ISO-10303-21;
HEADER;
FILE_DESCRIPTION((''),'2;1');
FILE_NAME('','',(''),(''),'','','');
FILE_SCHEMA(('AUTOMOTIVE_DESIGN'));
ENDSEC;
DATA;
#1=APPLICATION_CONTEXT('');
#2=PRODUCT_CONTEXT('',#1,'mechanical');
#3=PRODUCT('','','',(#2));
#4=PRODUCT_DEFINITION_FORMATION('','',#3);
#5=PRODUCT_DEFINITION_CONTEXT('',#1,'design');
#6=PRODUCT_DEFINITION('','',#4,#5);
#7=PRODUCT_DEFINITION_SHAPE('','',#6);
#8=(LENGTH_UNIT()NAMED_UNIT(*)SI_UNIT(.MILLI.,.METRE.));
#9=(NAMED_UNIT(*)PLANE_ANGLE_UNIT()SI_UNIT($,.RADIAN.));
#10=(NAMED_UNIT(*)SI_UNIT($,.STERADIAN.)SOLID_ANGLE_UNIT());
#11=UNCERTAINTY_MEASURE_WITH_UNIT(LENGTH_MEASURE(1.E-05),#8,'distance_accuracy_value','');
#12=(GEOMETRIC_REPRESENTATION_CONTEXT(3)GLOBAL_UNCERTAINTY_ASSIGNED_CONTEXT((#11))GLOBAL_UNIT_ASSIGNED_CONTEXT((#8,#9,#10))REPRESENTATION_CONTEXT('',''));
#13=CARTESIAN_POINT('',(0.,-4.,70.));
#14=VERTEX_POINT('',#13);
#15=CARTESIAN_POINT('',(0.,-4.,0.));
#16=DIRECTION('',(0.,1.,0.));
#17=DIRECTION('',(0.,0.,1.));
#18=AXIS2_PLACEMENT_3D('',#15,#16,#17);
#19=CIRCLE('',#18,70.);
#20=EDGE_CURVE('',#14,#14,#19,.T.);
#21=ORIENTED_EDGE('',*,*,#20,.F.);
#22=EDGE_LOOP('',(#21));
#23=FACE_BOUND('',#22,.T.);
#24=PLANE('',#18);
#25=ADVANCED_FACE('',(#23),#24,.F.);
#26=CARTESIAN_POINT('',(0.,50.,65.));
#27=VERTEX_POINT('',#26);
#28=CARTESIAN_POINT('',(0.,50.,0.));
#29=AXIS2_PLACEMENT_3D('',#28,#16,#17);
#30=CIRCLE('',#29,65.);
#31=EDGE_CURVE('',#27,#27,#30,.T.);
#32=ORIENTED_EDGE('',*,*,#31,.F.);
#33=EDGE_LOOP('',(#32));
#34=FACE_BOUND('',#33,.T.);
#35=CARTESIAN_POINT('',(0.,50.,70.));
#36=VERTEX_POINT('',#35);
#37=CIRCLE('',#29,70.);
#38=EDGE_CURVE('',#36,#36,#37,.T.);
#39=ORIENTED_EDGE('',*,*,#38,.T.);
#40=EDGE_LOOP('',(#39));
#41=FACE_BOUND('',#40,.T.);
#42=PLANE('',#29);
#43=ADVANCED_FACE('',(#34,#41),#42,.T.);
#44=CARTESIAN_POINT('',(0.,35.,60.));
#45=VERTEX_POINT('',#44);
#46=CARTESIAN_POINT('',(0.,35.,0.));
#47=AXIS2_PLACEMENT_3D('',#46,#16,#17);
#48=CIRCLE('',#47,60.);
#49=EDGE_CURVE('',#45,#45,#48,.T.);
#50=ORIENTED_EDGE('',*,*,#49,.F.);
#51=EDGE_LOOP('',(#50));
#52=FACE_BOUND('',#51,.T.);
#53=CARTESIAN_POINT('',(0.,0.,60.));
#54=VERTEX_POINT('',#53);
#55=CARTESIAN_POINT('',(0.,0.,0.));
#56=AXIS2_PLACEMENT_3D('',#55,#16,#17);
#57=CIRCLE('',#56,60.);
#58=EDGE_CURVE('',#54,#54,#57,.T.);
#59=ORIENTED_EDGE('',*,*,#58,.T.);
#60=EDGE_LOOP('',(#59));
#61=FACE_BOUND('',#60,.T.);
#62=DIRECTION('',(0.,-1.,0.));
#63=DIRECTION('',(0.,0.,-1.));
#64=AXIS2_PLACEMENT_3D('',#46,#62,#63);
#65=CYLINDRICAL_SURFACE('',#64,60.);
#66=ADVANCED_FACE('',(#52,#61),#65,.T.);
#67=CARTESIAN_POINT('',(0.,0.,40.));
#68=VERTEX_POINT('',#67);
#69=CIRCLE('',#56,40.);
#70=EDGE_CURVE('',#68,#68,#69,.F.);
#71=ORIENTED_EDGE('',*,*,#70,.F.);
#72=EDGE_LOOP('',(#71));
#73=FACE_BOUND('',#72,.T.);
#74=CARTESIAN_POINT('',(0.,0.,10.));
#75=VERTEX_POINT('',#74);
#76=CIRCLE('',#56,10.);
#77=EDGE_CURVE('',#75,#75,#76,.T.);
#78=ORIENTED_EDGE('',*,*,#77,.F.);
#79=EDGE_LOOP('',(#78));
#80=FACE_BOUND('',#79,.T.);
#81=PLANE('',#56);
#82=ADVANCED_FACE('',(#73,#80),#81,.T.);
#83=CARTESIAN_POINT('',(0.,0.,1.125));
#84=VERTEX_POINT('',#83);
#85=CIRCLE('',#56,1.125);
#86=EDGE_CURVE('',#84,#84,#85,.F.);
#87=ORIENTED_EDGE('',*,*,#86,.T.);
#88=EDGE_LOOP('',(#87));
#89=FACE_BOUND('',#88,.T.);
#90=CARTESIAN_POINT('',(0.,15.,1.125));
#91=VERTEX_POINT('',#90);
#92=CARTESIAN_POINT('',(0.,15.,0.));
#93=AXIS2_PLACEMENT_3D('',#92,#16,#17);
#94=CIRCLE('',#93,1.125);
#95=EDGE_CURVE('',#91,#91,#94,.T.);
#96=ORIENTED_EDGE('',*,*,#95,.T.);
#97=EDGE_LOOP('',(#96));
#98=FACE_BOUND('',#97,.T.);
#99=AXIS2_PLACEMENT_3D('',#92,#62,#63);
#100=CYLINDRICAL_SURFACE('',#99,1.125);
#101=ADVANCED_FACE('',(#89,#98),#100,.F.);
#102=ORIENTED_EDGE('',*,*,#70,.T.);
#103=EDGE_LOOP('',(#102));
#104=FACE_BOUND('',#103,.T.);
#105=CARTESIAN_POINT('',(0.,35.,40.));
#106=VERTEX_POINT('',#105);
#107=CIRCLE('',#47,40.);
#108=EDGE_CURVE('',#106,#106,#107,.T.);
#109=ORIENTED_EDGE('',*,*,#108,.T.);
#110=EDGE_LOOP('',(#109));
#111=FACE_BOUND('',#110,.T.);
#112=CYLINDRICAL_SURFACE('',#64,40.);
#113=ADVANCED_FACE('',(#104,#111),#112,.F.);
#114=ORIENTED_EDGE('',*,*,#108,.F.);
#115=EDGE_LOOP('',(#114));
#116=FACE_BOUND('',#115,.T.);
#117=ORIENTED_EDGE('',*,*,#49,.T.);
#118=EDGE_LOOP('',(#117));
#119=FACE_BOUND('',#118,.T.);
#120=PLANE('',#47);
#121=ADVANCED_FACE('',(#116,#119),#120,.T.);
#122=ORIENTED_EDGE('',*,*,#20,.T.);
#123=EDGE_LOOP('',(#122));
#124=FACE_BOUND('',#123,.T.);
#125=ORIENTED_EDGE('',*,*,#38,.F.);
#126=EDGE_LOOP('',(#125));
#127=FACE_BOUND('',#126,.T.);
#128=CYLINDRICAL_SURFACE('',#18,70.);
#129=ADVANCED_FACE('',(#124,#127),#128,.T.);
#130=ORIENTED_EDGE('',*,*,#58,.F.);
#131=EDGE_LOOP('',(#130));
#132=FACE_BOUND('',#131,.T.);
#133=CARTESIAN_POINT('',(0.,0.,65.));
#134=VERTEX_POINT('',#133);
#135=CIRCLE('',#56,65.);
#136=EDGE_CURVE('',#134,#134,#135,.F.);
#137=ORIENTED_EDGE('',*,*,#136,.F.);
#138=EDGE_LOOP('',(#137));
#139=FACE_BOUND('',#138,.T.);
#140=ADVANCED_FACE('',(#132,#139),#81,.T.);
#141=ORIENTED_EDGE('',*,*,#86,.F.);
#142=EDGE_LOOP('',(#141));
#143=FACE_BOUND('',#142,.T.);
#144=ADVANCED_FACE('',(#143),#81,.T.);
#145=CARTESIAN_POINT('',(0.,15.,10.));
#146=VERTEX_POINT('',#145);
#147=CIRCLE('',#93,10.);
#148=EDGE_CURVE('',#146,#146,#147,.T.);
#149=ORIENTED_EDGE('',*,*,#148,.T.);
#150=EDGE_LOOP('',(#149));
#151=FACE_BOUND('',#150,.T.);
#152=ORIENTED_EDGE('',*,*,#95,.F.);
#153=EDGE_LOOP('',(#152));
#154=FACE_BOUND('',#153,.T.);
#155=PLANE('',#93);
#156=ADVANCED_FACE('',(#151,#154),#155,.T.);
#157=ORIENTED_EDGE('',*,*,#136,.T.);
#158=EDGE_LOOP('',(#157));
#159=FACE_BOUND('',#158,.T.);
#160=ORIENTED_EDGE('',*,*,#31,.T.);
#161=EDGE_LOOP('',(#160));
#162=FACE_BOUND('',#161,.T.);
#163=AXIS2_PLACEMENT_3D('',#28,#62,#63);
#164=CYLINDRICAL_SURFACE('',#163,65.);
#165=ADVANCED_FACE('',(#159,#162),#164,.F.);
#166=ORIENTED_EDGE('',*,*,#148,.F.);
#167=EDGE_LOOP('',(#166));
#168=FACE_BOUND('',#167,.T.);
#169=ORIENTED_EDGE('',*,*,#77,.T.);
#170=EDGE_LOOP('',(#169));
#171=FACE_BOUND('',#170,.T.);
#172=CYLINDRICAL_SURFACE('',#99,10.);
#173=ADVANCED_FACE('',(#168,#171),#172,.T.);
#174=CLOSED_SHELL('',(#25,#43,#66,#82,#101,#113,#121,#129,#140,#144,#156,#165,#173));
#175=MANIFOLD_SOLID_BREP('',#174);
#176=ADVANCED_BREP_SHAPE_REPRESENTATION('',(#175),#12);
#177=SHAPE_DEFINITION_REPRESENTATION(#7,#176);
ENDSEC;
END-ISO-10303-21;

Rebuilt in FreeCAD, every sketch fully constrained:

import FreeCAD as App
import Part
import Sketcher
Q = App.Units.Quantity

doc = App.newDocument("Part")
body = doc.addObject("PartDesign::Body", "Body")

# Sketch on XZ plane
sketch1 = doc.addObject("Sketcher::SketchObject", "Sketch")
body.addObject(sketch1)
sketch1.AttachmentSupport = (doc.XZ_Plane, [""])
sketch1.MapMode = "FlatFace"
sketch1.addGeometry(Part.Circle(App.Vector(0, 0, 0), App.Vector(0, 0, 1), 70), False)
sketch1.addConstraint([
    Sketcher.Constraint("Coincident", 0, 3, -1, 1),
    Sketcher.Constraint("Diameter", 0, Q("140 mm")),
])
pad1 = doc.addObject("PartDesign::Pad", "Pad")
body.addObject(pad1)
pad1.Profile = sketch1
pad1.Length = 4

# Sketch on XZ plane
sketch2 = doc.addObject("Sketcher::SketchObject", "Sketch001")
body.addObject(sketch2)
sketch2.AttachmentSupport = (doc.XZ_Plane, [""])
sketch2.MapMode = "FlatFace"
sketch2.addGeometry([
    Part.Circle(App.Vector(0, 0, 0), App.Vector(0, 0, 1), 10),
    Part.Circle(App.Vector(0, 0, 0), App.Vector(0, 0, 1), 1.125),
], False)
sketch2.addConstraint([
    Sketcher.Constraint("Coincident", 0, 3, -1, 1),
    Sketcher.Constraint("Coincident", 1, 3, -1, 1),
    Sketcher.Constraint("Diameter", 0, Q("20 mm")),
    Sketcher.Constraint("Diameter", 1, Q("2.25 mm")),
])
pad2 = doc.addObject("PartDesign::Pad", "Pad001")
body.addObject(pad2)
pad2.Profile = sketch2
pad2.Length = 15
pad2.Reversed = True

# Sketch on XZ plane
sketch3 = doc.addObject("Sketcher::SketchObject", "Sketch002")
body.addObject(sketch3)
sketch3.AttachmentSupport = (doc.XZ_Plane, [""])
sketch3.MapMode = "FlatFace"
sketch3.addGeometry([
    Part.Circle(App.Vector(0, 0, 0), App.Vector(0, 0, 1), 70),
    Part.Circle(App.Vector(0, 0, 0), App.Vector(0, 0, 1), 65),
], False)
sketch3.addConstraint([
    Sketcher.Constraint("Coincident", 0, 3, -1, 1),
    Sketcher.Constraint("Coincident", 1, 3, -1, 1),
    Sketcher.Constraint("Diameter", 0, Q("140 mm")),
    Sketcher.Constraint("Diameter", 1, Q("130 mm")),
])
pad3 = doc.addObject("PartDesign::Pad", "Pad002")
body.addObject(pad3)
pad3.Profile = sketch3
pad3.Length = 50
pad3.Reversed = True

# Sketch on XZ plane
sketch4 = doc.addObject("Sketcher::SketchObject", "Sketch003")
body.addObject(sketch4)
sketch4.AttachmentSupport = (doc.XZ_Plane, [""])
sketch4.MapMode = "FlatFace"
sketch4.addGeometry([
    Part.Circle(App.Vector(0, 0, 0), App.Vector(0, 0, 1), 60),
    Part.Circle(App.Vector(0, 0, 0), App.Vector(0, 0, 1), 40),
], False)
sketch4.addConstraint([
    Sketcher.Constraint("Coincident", 0, 3, -1, 1),
    Sketcher.Constraint("Coincident", 1, 3, -1, 1),
    Sketcher.Constraint("Diameter", 0, Q("120 mm")),
    Sketcher.Constraint("Diameter", 1, Q("80 mm")),
])
pad4 = doc.addObject("PartDesign::Pad", "Pad003")
body.addObject(pad4)
pad4.Profile = sketch4
pad4.Length = 35
pad4.Reversed = True

doc.recompute()
